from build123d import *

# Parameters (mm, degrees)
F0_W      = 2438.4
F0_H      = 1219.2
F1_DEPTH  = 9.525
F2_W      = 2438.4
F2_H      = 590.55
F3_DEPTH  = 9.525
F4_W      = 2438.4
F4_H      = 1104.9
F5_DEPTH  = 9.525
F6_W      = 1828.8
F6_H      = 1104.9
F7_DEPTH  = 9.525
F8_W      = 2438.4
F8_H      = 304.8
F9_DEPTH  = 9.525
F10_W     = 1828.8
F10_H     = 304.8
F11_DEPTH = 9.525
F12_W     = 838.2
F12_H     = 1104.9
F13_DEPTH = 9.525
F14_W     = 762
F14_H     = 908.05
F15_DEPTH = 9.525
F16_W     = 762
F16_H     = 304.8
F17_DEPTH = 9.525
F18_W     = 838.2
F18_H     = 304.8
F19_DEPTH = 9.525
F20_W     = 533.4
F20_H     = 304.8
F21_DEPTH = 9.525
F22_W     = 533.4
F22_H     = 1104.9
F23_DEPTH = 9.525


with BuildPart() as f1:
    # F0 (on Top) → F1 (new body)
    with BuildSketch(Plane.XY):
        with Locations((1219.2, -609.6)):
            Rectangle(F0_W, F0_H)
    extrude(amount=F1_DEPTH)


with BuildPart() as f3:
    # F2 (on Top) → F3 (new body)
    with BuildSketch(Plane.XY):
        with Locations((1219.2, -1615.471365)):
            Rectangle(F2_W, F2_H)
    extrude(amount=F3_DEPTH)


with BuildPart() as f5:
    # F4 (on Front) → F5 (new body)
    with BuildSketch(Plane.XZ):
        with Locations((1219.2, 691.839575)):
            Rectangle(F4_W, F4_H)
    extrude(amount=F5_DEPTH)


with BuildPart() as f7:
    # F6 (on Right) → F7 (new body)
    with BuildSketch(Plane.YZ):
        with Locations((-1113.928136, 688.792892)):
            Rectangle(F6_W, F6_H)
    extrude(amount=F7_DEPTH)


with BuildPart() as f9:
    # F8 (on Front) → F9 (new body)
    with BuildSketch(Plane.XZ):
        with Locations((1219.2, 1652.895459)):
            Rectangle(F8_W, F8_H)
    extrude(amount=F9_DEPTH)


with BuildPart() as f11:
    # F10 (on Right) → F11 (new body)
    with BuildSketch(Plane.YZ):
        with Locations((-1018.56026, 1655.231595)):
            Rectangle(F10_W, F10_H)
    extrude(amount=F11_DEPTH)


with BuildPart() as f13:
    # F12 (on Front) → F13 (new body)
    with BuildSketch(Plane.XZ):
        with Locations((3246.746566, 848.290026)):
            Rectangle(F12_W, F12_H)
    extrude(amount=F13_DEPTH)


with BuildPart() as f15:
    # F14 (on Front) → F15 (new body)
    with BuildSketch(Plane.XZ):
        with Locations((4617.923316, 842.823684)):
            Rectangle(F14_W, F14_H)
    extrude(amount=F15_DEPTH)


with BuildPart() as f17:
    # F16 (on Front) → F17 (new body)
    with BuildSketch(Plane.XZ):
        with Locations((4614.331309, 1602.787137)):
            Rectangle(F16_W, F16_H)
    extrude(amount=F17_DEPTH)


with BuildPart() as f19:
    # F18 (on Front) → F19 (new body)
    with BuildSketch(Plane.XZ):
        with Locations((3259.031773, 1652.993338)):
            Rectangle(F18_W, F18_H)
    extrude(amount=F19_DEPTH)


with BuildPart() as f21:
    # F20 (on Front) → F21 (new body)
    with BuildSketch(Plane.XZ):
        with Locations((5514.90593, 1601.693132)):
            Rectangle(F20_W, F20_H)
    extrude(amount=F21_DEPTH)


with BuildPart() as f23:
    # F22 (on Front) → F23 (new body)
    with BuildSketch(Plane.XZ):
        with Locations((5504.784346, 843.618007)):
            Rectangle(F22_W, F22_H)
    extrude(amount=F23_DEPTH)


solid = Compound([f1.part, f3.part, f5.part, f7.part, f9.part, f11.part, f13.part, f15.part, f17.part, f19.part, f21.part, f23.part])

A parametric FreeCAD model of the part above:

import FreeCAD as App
import Part
import Sketcher
from FreeCAD import Vector
Q = App.Units.Quantity


def add_polygon(sketch, points):
    """Adds a closed chain of lines whose ends are joined by coincident constraints."""
    first, n = sketch.GeometryCount, len(points)
    for a, b in zip(points, points[1:] + points[:1]):
        sketch.addGeometry(Part.LineSegment(App.Vector(*a, 0), App.Vector(*b, 0)), False)
    for i in range(n):
        sketch.addConstraint(Sketcher.Constraint("Coincident", first + i, 2, first + (i + 1) % n, 1))

doc = App.newDocument("Part")
params = doc.addObject("Spreadsheet::Sheet", "Params")
for row, (alias, value) in enumerate([
    ("sketch1_width", "96 in"),
    ("sketch1_height", "48 in"),
    ("pad1_length", "0.375 in"),
    ("sketch2_width", "96 in"),
    ("sketch2_height", "23.25 in"),
    ("pad2_length", "0.375 in"),
    ("sketch3_width", "96 in"),
    ("sketch3_height", "43.5 in"),
    ("pad3_length", "0.375 in"),
    ("sketch4_width", "72 in"),
    ("sketch4_height", "43.5 in"),
    ("pad4_length", "0.375 in"),
    ("sketch5_width", "96 in"),
    ("sketch5_height", "12 in"),
    ("pad5_length", "0.375 in"),
    ("sketch6_width", "72 in"),
    ("sketch6_height", "12 in"),
    ("pad6_length", "0.375 in"),
    ("sketch7_width", "33 in"),
    ("sketch7_height", "43.5 in"),
    ("pad7_length", "0.375 in"),
    ("sketch8_width", "30 in"),
    ("sketch8_height", "35.75 in"),
    ("pad8_length", "0.375 in"),
    ("sketch9_width", "30 in"),
    ("sketch9_height", "12 in"),
    ("pad9_length", "0.375 in"),
    ("sketch10_width", "33 in"),
    ("sketch10_height", "12 in"),
    ("pad10_length", "0.375 in"),
    ("sketch11_width", "21 in"),
    ("sketch11_height", "12 in"),
    ("pad11_length", "0.375 in"),
    ("sketch12_width", "21 in"),
    ("sketch12_height", "43.5 in"),
    ("pad12_length", "0.375 in"),
], start=1):
    params.set(f"A{row}", alias)
    params.set(f"B{row}", "=" + value)
    params.setAlias(f"B{row}", alias)

body = doc.addObject("PartDesign::Body", "Body")

# Sketch on XY plane
sketch1 = doc.addObject("Sketcher::SketchObject", "Sketch")
body.addObject(sketch1)
sketch1.AttachmentSupport = (doc.XY_Plane, [""])
sketch1.MapMode = "FlatFace"
add_polygon(sketch1, [(0, 0), (0, -1219), (2438, -1219), (2438, 0)])  # lines 0-3
sketch1.addConstraint(Sketcher.Constraint("Vertical", 0))
sketch1.addConstraint(Sketcher.Constraint("Horizontal", 1))
sketch1.addConstraint(Sketcher.Constraint("Vertical", 2))
sketch1.addConstraint(Sketcher.Constraint("Horizontal", 3))
sketch1.addConstraint(Sketcher.Constraint("Coincident", 3, 2, -1, 1))
sketch1.addConstraint(Sketcher.Constraint("DistanceX", 1, 1, 1, 2, Q("96 in")))
sketch1.addConstraint(Sketcher.Constraint("DistanceY", 0, 2, 0, 1, Q("48 in")))
sketch1.setExpression("Constraints[9]", "Params.sketch1_width")
sketch1.setExpression("Constraints[10]", "Params.sketch1_height")
pad1 = doc.addObject("PartDesign::Pad", "Pad")
body.addObject(pad1)
pad1.Profile = sketch1
pad1.setExpression("Length", "Params.pad1_length")
body2 = doc.addObject("PartDesign::Body", "Body001")

# Sketch on XY plane
sketch2 = doc.addObject("Sketcher::SketchObject", "Sketch001")
body2.addObject(sketch2)
sketch2.AttachmentSupport = (doc.getObject("XY_Plane001"), [""])
sketch2.MapMode = "FlatFace"
add_polygon(sketch2, [(0, -1320), (0, -1911), (2438, -1911), (2438, -1320)])  # lines 0-3
sketch2.addConstraint(Sketcher.Constraint("Vertical", 0))
sketch2.addConstraint(Sketcher.Constraint("Horizontal", 1))
sketch2.addConstraint(Sketcher.Constraint("Vertical", 2))
sketch2.addConstraint(Sketcher.Constraint("Horizontal", 3))
sketch2.addConstraint(Sketcher.Constraint("PointOnObject", 0, 2, -2))
sketch2.addConstraint(Sketcher.Constraint("DistanceX", 1, 1, 1, 2, Q("96 in")))
sketch2.addConstraint(Sketcher.Constraint("DistanceY", 0, 2, 0, 1, Q("23.25 in")))
sketch2.addConstraint(Sketcher.Constraint("DistanceY", 0, 2, -1, 1, Q("1910.746365 mm")))
sketch2.setExpression("Constraints[9]", "Params.sketch2_width")
sketch2.setExpression("Constraints[10]", "Params.sketch2_height")
pad2 = doc.addObject("PartDesign::Pad", "Pad001")
body2.addObject(pad2)
pad2.Profile = sketch2
pad2.setExpression("Length", "Params.pad2_length")
body3 = doc.addObject("PartDesign::Body", "Body002")

# Sketch on XZ plane
sketch3 = doc.addObject("Sketcher::SketchObject", "Sketch002")
body3.addObject(sketch3)
sketch3.AttachmentSupport = (doc.getObject("XZ_Plane002"), [""])
sketch3.MapMode = "FlatFace"
add_polygon(sketch3, [(0, 1244), (0, 139), (2438, 139), (2438, 1244)])  # lines 0-3
sketch3.addConstraint(Sketcher.Constraint("Vertical", 0))
sketch3.addConstraint(Sketcher.Constraint("Horizontal", 1))
sketch3.addConstraint(Sketcher.Constraint("Vertical", 2))
sketch3.addConstraint(Sketcher.Constraint("Horizontal", 3))
sketch3.addConstraint(Sketcher.Constraint("PointOnObject", 0, 2, -2))
sketch3.addConstraint(Sketcher.Constraint("DistanceX", 1, 1, 1, 2, Q("96 in")))
sketch3.addConstraint(Sketcher.Constraint("DistanceY", 0, 2, 0, 1, Q("43.5 in")))
sketch3.addConstraint(Sketcher.Constraint("DistanceY", -1, 1, 0, 2, Q("139.389575 mm")))
sketch3.setExpression("Constraints[9]", "Params.sketch3_width")
sketch3.setExpression("Constraints[10]", "Params.sketch3_height")
pad3 = doc.addObject("PartDesign::Pad", "Pad002")
body3.addObject(pad3)
pad3.Profile = sketch3
pad3.setExpression("Length", "Params.pad3_length")
body4 = doc.addObject("PartDesign::Body", "Body003")

# Sketch on YZ plane
sketch4 = doc.addObject("Sketcher::SketchObject", "Sketch003")
body4.addObject(sketch4)
sketch4.AttachmentSupport = (doc.getObject("YZ_Plane003"), [""])
sketch4.MapMode = "FlatFace"
add_polygon(sketch4, [(-2028, 1241), (-2028, 136), (-200, 136), (-200, 1241)])  # lines 0-3
sketch4.addConstraint(Sketcher.Constraint("Vertical", 0))
sketch4.addConstraint(Sketcher.Constraint("Horizontal", 1))
sketch4.addConstraint(Sketcher.Constraint("Vertical", 2))
sketch4.addConstraint(Sketcher.Constraint("Horizontal", 3))
sketch4.addConstraint(Sketcher.Constraint("DistanceX", 1, 1, 1, 2, Q("72 in")))
sketch4.addConstraint(Sketcher.Constraint("DistanceY", 0, 2, 0, 1, Q("43.5 in")))
sketch4.addConstraint(Sketcher.Constraint("DistanceY", -1, 1, 0, 2, Q("136.342892 mm")))
sketch4.addConstraint(Sketcher.Constraint("DistanceX", 0, 2, -1, 1, Q("2028.328136 mm")))
sketch4.setExpression("Constraints[8]", "Params.sketch4_width")
sketch4.setExpression("Constraints[9]", "Params.sketch4_height")
pad4 = doc.addObject("PartDesign::Pad", "Pad003")
body4.addObject(pad4)
pad4.Profile = sketch4
pad4.setExpression("Length", "Params.pad4_length")
body5 = doc.addObject("PartDesign::Body", "Body004")

# Sketch on XZ plane
sketch5 = doc.addObject("Sketcher::SketchObject", "Sketch004")
body5.addObject(sketch5)
sketch5.AttachmentSupport = (doc.getObject("XZ_Plane004"), [""])
sketch5.MapMode = "FlatFace"
add_polygon(sketch5, [(0, 1805), (0, 1500), (2438, 1500), (2438, 1805)])  # lines 0-3
sketch5.addConstraint(Sketcher.Constraint("Vertical", 0))
sketch5.addConstraint(Sketcher.Constraint("Horizontal", 1))
sketch5.addConstraint(Sketcher.Constraint("Vertical", 2))
sketch5.addConstraint(Sketcher.Constraint("Horizontal", 3))
sketch5.addConstraint(Sketcher.Constraint("PointOnObject", 0, 2, -2))
sketch5.addConstraint(Sketcher.Constraint("DistanceX", 1, 1, 1, 2, Q("96 in")))
sketch5.addConstraint(Sketcher.Constraint("DistanceY", 0, 2, 0, 1, Q("12 in")))
sketch5.addConstraint(Sketcher.Constraint("DistanceY", -1, 1, 0, 2, Q("1500.495459 mm")))
sketch5.setExpression("Constraints[9]", "Params.sketch5_width")
sketch5.setExpression("Constraints[10]", "Params.sketch5_height")
pad5 = doc.addObject("PartDesign::Pad", "Pad004")
body5.addObject(pad5)
pad5.Profile = sketch5
pad5.setExpression("Length", "Params.pad5_length")
body6 = doc.addObject("PartDesign::Body", "Body005")

# Sketch on YZ plane
sketch6 = doc.addObject("Sketcher::SketchObject", "Sketch005")
body6.addObject(sketch6)
sketch6.AttachmentSupport = (doc.getObject("YZ_Plane005"), [""])
sketch6.MapMode = "FlatFace"
add_polygon(sketch6, [(-1933, 1808), (-1933, 1503), (-104, 1503), (-104, 1808)])  # lines 0-3
sketch6.addConstraint(Sketcher.Constraint("Vertical", 0))
sketch6.addConstraint(Sketcher.Constraint("Horizontal", 1))
sketch6.addConstraint(Sketcher.Constraint("Vertical", 2))
sketch6.addConstraint(Sketcher.Constraint("Horizontal", 3))
sketch6.addConstraint(Sketcher.Constraint("DistanceX", 1, 1, 1, 2, Q("72 in")))
sketch6.addConstraint(Sketcher.Constraint("DistanceY", 0, 2, 0, 1, Q("12 in")))
sketch6.addConstraint(Sketcher.Constraint("DistanceX", 0, 2, -1, 1, Q("1932.96026 mm")))
sketch6.addConstraint(Sketcher.Constraint("DistanceY", -1, 1, 0, 2, Q("1502.831595 mm")))
sketch6.setExpression("Constraints[8]", "Params.sketch6_width")
sketch6.setExpression("Constraints[9]", "Params.sketch6_height")
pad6 = doc.addObject("PartDesign::Pad", "Pad005")
body6.addObject(pad6)
pad6.Profile = sketch6
pad6.setExpression("Length", "Params.pad6_length")
body7 = doc.addObject("PartDesign::Body", "Body006")

# Sketch on XZ plane
sketch7 = doc.addObject("Sketcher::SketchObject", "Sketch006")
body7.addObject(sketch7)
sketch7.AttachmentSupport = (doc.getObject("XZ_Plane006"), [""])
sketch7.MapMode = "FlatFace"
add_polygon(sketch7, [(2828, 1401), (2828, 296), (3666, 296), (3666, 1401)])  # lines 0-3
sketch7.addConstraint(Sketcher.Constraint("Vertical", 0))
sketch7.addConstraint(Sketcher.Constraint("Horizontal", 1))
sketch7.addConstraint(Sketcher.Constraint("Vertical", 2))
sketch7.addConstraint(Sketcher.Constraint("Horizontal", 3))
sketch7.addConstraint(Sketcher.Constraint("DistanceX", 1, 1, 1, 2, Q("33 in")))
sketch7.addConstraint(Sketcher.Constraint("DistanceY", 0, 2, 0, 1, Q("43.5 in")))
sketch7.addConstraint(Sketcher.Constraint("DistanceX", -1, 1, 0, 2, Q("2827.646566 mm")))
sketch7.addConstraint(Sketcher.Constraint("DistanceY", -1, 1, 0, 2, Q("295.840026 mm")))
sketch7.setExpression("Constraints[8]", "Params.sketch7_width")
sketch7.setExpression("Constraints[9]", "Params.sketch7_height")
pad7 = doc.addObject("PartDesign::Pad", "Pad006")
body7.addObject(pad7)
pad7.Profile = sketch7
pad7.setExpression("Length", "Params.pad7_length")
body8 = doc.addObject("PartDesign::Body", "Body007")

# Sketch on XZ plane
sketch8 = doc.addObject("Sketcher::SketchObject", "Sketch007")
body8.addObject(sketch8)
sketch8.AttachmentSupport = (doc.getObject("XZ_Plane007"), [""])
sketch8.MapMode = "FlatFace"
add_polygon(sketch8, [(4237, 1297), (4237, 389), (4999, 389), (4999, 1297)])  # lines 0-3
sketch8.addConstraint(Sketcher.Constraint("Vertical", 0))
sketch8.addConstraint(Sketcher.Constraint("Horizontal", 1))
sketch8.addConstraint(Sketcher.Constraint("Vertical", 2))
sketch8.addConstraint(Sketcher.Constraint("Horizontal", 3))
sketch8.addConstraint(Sketcher.Constraint("DistanceX", 1, 1, 1, 2, Q("30 in")))
sketch8.addConstraint(Sketcher.Constraint("DistanceY", 0, 2, 0, 1, Q("35.75 in")))
sketch8.addConstraint(Sketcher.Constraint("DistanceX", -1, 1, 0, 2, Q("4236.923316 mm")))
sketch8.addConstraint(Sketcher.Constraint("DistanceY", -1, 1, 0, 2, Q("388.798684 mm")))
sketch8.setExpression("Constraints[8]", "Params.sketch8_width")
sketch8.setExpression("Constraints[9]", "Params.sketch8_height")
pad8 = doc.addObject("PartDesign::Pad", "Pad007")
body8.addObject(pad8)
pad8.Profile = sketch8
pad8.setExpression("Length", "Params.pad8_length")
body9 = doc.addObject("PartDesign::Body", "Body008")

# Sketch on XZ plane
sketch9 = doc.addObject("Sketcher::SketchObject", "Sketch008")
body9.addObject(sketch9)
sketch9.AttachmentSupport = (doc.getObject("XZ_Plane008"), [""])
sketch9.MapMode = "FlatFace"
add_polygon(sketch9, [(4233, 1755), (4233, 1450), (4995, 1450), (4995, 1755)])  # lines 0-3
sketch9.addConstraint(Sketcher.Constraint("Vertical", 0))
sketch9.addConstraint(Sketcher.Constraint("Horizontal", 1))
sketch9.addConstraint(Sketcher.Constraint("Vertical", 2))
sketch9.addConstraint(Sketcher.Constraint("Horizontal", 3))
sketch9.addConstraint(Sketcher.Constraint("DistanceX", 1, 1, 1, 2, Q("30 in")))
sketch9.addConstraint(Sketcher.Constraint("DistanceY", 0, 2, 0, 1, Q("12 in")))
sketch9.addConstraint(Sketcher.Constraint("DistanceX", -1, 1, 0, 2, Q("4233.331309 mm")))
sketch9.addConstraint(Sketcher.Constraint("DistanceY", -1, 1, 0, 2, Q("1450.387137 mm")))
sketch9.setExpression("Constraints[8]", "Params.sketch9_width")
sketch9.setExpression("Constraints[9]", "Params.sketch9_height")
pad9 = doc.addObject("PartDesign::Pad", "Pad008")
body9.addObject(pad9)
pad9.Profile = sketch9
pad9.setExpression("Length", "Params.pad9_length")
body10 = doc.addObject("PartDesign::Body", "Body009")

# Sketch on XZ plane
sketch10 = doc.addObject("Sketcher::SketchObject", "Sketch009")
body10.addObject(sketch10)
sketch10.AttachmentSupport = (doc.getObject("XZ_Plane009"), [""])
sketch10.MapMode = "FlatFace"
add_polygon(sketch10, [(2840, 1805), (2840, 1501), (3678, 1501), (3678, 1805)])  # lines 0-3
sketch10.addConstraint(Sketcher.Constraint("Vertical", 0))
sketch10.addConstraint(Sketcher.Constraint("Horizontal", 1))
sketch10.addConstraint(Sketcher.Constraint("Vertical", 2))
sketch10.addConstraint(Sketcher.Constraint("Horizontal", 3))
sketch10.addConstraint(Sketcher.Constraint("DistanceX", 1, 1, 1, 2, Q("33 in")))
sketch10.addConstraint(Sketcher.Constraint("DistanceY", 0, 2, 0, 1, Q("12 in")))
sketch10.addConstraint(Sketcher.Constraint("DistanceY", -1, 1, 0, 2, Q("1500.593338 mm")))
sketch10.addConstraint(Sketcher.Constraint("DistanceX", -1, 1, 0, 2, Q("2839.931773 mm")))
sketch10.setExpression("Constraints[8]", "Params.sketch10_width")
sketch10.setExpression("Constraints[9]", "Params.sketch10_height")
pad10 = doc.addObject("PartDesign::Pad", "Pad009")
body10.addObject(pad10)
pad10.Profile = sketch10
pad10.setExpression("Length", "Params.pad10_length")
body11 = doc.addObject("PartDesign::Body", "Body010")

# Sketch on XZ plane
sketch11 = doc.addObject("Sketcher::SketchObject", "Sketch010")
body11.addObject(sketch11)
sketch11.AttachmentSupport = (doc.getObject("XZ_Plane010"), [""])
sketch11.MapMode = "FlatFace"
add_polygon(sketch11, [(5248, 1754), (5248, 1449), (5782, 1449), (5782, 1754)])  # lines 0-3
sketch11.addConstraint(Sketcher.Constraint("Vertical", 0))
sketch11.addConstraint(Sketcher.Constraint("Horizontal", 1))
sketch11.addConstraint(Sketcher.Constraint("Vertical", 2))
sketch11.addConstraint(Sketcher.Constraint("Horizontal", 3))
sketch11.addConstraint(Sketcher.Constraint("DistanceX", 1, 1, 1, 2, Q("21 in")))
sketch11.addConstraint(Sketcher.Constraint("DistanceY", 0, 2, 0, 1, Q("12 in")))
sketch11.addConstraint(Sketcher.Constraint("DistanceX", -1, 1, 0, 2, Q("5248.20593 mm")))
sketch11.addConstraint(Sketcher.Constraint("DistanceY", -1, 1, 0, 2, Q("1449.293132 mm")))
sketch11.setExpression("Constraints[8]", "Params.sketch11_width")
sketch11.setExpression("Constraints[9]", "Params.sketch11_height")
pad11 = doc.addObject("PartDesign::Pad", "Pad010")
body11.addObject(pad11)
pad11.Profile = sketch11
pad11.setExpression("Length", "Params.pad11_length")
body12 = doc.addObject("PartDesign::Body", "Body011")

# Sketch on XZ plane
sketch12 = doc.addObject("Sketcher::SketchObject", "Sketch011")
body12.addObject(sketch12)
sketch12.AttachmentSupport = (doc.getObject("XZ_Plane011"), [""])
sketch12.MapMode = "FlatFace"
add_polygon(sketch12, [(5238, 1396), (5238, 291), (5771, 291), (5771, 1396)])  # lines 0-3
sketch12.addConstraint(Sketcher.Constraint("Vertical", 0))
sketch12.addConstraint(Sketcher.Constraint("Horizontal", 1))
sketch12.addConstraint(Sketcher.Constraint("Vertical", 2))
sketch12.addConstraint(Sketcher.Constraint("Horizontal", 3))
sketch12.addConstraint(Sketcher.Constraint("DistanceX", 1, 1, 1, 2, Q("21 in")))
sketch12.addConstraint(Sketcher.Constraint("DistanceY", 0, 2, 0, 1, Q("43.5 in")))
sketch12.addConstraint(Sketcher.Constraint("DistanceX", -1, 1, 0, 2, Q("5238.084346 mm")))
sketch12.addConstraint(Sketcher.Constraint("DistanceY", -1, 1, 0, 2, Q("291.168007 mm")))
sketch12.setExpression("Constraints[8]", "Params.sketch12_width")
sketch12.setExpression("Constraints[9]", "Params.sketch12_height")
pad12 = doc.addObject("PartDesign::Pad", "Pad011")
body12.addObject(pad12)
pad12.Profile = sketch12
pad12.setExpression("Length", "Params.pad12_length")

doc.recompute()
